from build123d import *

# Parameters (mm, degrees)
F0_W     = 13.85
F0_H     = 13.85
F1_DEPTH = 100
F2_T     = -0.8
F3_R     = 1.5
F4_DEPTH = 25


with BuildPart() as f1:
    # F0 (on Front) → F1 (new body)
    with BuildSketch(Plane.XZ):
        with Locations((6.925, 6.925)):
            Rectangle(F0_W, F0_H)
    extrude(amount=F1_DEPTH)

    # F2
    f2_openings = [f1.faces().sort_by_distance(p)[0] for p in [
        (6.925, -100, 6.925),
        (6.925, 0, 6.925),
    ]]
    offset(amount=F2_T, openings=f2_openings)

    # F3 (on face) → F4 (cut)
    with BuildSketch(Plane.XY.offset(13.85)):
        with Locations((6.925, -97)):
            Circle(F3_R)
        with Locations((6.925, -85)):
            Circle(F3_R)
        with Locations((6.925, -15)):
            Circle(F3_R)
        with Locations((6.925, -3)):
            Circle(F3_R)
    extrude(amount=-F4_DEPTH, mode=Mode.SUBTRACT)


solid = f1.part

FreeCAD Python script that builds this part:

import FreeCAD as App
import Part
import Sketcher
from FreeCAD import Vector


def faces_at(feature, points):
    """Names of the faces that lie closest to the given points."""
    faces = feature.Shape.Faces
    near = lambda p: min(range(len(faces)), key=lambda i: faces[i].distToShape(Part.Vertex(*p))[0])
    return sorted({f"Face{near(p) + 1}" for p in points})


def add_polygon(sketch, points):
    """Adds a closed chain of lines whose ends are joined by coincident constraints."""
    first, n = sketch.GeometryCount, len(points)
    for a, b in zip(points, points[1:] + points[:1]):
        sketch.addGeometry(Part.LineSegment(App.Vector(*a, 0), App.Vector(*b, 0)), False)
    for i in range(n):
        sketch.addConstraint(Sketcher.Constraint("Coincident", first + i, 2, first + (i + 1) % n, 1))

doc = App.newDocument("Part")
params = doc.addObject("Spreadsheet::Sheet", "Params")
for row, (alias, value) in enumerate([
    ("sketch1_width", "13.85 mm"),
    ("pad1_length", "100 mm"),
    ("thickness_wall", "0.8 mm"),
    ("sketch2_diameter", "3 mm"),
    ("pocket1_length", "25 mm"),
], start=1):
    params.set(f"A{row}", alias)
    params.set(f"B{row}", "=" + value)
    params.setAlias(f"B{row}", alias)

body = doc.addObject("PartDesign::Body", "Body")

sketch1 = body.newObject("Sketcher::SketchObject", "Sketch")
sketch1.AttachmentSupport = (doc.getObject("XZ_Plane"), [""])
sketch1.MapMode = "FlatFace"
add_polygon(sketch1, [(0, 13.85), (0, 0), (13.85, 0), (13.85, 13.85)])
sketch1.addConstraint(Sketcher.Constraint("Vertical", 0))
sketch1.addConstraint(Sketcher.Constraint("Horizontal", 1))
sketch1.addConstraint(Sketcher.Constraint("Vertical", 2))
sketch1.addConstraint(Sketcher.Constraint("Horizontal", 3))
sketch1.addConstraint(Sketcher.Constraint("Coincident", 0, 2, -1, 1))
sketch1.addConstraint(Sketcher.Constraint("Equal", 3, 0))
sketch1.addConstraint(Sketcher.Constraint("DistanceX", 1, 1, 1, 2, 13.85))
sketch1.setExpression("Constraints[10]", "Params.sketch1_width")
pad1 = body.newObject("PartDesign::Pad", "Pad")
pad1.Profile = sketch1
pad1.setExpression("Length", "Params.pad1_length")
doc.recompute()

thickness = body.newObject("PartDesign::Thickness", "Thickness")
thickness.Base = (pad1, faces_at(pad1, [(6.925, -100, 6.925), (6.925, 0, 6.925)]))
thickness.setExpression("Value", "Params.thickness_wall")
thickness.Reversed = True
thickness.Join = "Arc"

sketch2 = body.newObject("Sketcher::SketchObject", "Sketch001")
sketch2.AttachmentSupport = (doc.getObject("XY_Plane"), [""])
sketch2.MapMode = "FlatFace"
sketch2.AttachmentOffset = App.Placement(Vector(0, 0, 13.85), App.Rotation())
sketch2.addGeometry(Part.Circle(Vector(6.925, -97, 0), Vector(0, 0, 1), 1.5), False)
sketch2.addGeometry(Part.Circle(Vector(6.925, -85, 0), Vector(0, 0, 1), 1.5), False)
sketch2.addGeometry(Part.Circle(Vector(6.925, -15, 0), Vector(0, 0, 1), 1.5), False)
sketch2.addGeometry(Part.Circle(Vector(6.925, -3, 0), Vector(0, 0, 1), 1.5), False)
sketch2.addConstraint(Sketcher.Constraint("Equal", 0, 1))
sketch2.addConstraint(Sketcher.Constraint("Equal", 1, 2))
sketch2.addConstraint(Sketcher.Constraint("Equal", 2, 3))
sketch2.addConstraint(Sketcher.Constraint("Vertical", 0, 3, 1, 3))
sketch2.addConstraint(Sketcher.Constraint("Vertical", 1, 3, 2, 3))
sketch2.addConstraint(Sketcher.Constraint("Vertical", 2, 3, 3, 3))
sketch2.addConstraint(Sketcher.Constraint("Diameter", 0, 3.0))
sketch2.addConstraint(Sketcher.Constraint("DistanceY", 0, 3, -1, 1, 97.0))
sketch2.addConstraint(Sketcher.Constraint("DistanceY", 1, 3, -1, 1, 85.0))
sketch2.addConstraint(Sketcher.Constraint("DistanceY", 2, 3, -1, 1, 15.0))
sketch2.addConstraint(Sketcher.Constraint("DistanceY", 3, 3, -1, 1, 3.0))
sketch2.addConstraint(Sketcher.Constraint("DistanceX", -1, 1, 0, 3, 6.925))
sketch2.setExpression("Constraints[6]", "Params.sketch2_diameter")
pocket1 = body.newObject("PartDesign::Pocket", "Pocket")
pocket1.Profile = sketch2
pocket1.setExpression("Length", "Params.pocket1_length")

doc.recompute()
